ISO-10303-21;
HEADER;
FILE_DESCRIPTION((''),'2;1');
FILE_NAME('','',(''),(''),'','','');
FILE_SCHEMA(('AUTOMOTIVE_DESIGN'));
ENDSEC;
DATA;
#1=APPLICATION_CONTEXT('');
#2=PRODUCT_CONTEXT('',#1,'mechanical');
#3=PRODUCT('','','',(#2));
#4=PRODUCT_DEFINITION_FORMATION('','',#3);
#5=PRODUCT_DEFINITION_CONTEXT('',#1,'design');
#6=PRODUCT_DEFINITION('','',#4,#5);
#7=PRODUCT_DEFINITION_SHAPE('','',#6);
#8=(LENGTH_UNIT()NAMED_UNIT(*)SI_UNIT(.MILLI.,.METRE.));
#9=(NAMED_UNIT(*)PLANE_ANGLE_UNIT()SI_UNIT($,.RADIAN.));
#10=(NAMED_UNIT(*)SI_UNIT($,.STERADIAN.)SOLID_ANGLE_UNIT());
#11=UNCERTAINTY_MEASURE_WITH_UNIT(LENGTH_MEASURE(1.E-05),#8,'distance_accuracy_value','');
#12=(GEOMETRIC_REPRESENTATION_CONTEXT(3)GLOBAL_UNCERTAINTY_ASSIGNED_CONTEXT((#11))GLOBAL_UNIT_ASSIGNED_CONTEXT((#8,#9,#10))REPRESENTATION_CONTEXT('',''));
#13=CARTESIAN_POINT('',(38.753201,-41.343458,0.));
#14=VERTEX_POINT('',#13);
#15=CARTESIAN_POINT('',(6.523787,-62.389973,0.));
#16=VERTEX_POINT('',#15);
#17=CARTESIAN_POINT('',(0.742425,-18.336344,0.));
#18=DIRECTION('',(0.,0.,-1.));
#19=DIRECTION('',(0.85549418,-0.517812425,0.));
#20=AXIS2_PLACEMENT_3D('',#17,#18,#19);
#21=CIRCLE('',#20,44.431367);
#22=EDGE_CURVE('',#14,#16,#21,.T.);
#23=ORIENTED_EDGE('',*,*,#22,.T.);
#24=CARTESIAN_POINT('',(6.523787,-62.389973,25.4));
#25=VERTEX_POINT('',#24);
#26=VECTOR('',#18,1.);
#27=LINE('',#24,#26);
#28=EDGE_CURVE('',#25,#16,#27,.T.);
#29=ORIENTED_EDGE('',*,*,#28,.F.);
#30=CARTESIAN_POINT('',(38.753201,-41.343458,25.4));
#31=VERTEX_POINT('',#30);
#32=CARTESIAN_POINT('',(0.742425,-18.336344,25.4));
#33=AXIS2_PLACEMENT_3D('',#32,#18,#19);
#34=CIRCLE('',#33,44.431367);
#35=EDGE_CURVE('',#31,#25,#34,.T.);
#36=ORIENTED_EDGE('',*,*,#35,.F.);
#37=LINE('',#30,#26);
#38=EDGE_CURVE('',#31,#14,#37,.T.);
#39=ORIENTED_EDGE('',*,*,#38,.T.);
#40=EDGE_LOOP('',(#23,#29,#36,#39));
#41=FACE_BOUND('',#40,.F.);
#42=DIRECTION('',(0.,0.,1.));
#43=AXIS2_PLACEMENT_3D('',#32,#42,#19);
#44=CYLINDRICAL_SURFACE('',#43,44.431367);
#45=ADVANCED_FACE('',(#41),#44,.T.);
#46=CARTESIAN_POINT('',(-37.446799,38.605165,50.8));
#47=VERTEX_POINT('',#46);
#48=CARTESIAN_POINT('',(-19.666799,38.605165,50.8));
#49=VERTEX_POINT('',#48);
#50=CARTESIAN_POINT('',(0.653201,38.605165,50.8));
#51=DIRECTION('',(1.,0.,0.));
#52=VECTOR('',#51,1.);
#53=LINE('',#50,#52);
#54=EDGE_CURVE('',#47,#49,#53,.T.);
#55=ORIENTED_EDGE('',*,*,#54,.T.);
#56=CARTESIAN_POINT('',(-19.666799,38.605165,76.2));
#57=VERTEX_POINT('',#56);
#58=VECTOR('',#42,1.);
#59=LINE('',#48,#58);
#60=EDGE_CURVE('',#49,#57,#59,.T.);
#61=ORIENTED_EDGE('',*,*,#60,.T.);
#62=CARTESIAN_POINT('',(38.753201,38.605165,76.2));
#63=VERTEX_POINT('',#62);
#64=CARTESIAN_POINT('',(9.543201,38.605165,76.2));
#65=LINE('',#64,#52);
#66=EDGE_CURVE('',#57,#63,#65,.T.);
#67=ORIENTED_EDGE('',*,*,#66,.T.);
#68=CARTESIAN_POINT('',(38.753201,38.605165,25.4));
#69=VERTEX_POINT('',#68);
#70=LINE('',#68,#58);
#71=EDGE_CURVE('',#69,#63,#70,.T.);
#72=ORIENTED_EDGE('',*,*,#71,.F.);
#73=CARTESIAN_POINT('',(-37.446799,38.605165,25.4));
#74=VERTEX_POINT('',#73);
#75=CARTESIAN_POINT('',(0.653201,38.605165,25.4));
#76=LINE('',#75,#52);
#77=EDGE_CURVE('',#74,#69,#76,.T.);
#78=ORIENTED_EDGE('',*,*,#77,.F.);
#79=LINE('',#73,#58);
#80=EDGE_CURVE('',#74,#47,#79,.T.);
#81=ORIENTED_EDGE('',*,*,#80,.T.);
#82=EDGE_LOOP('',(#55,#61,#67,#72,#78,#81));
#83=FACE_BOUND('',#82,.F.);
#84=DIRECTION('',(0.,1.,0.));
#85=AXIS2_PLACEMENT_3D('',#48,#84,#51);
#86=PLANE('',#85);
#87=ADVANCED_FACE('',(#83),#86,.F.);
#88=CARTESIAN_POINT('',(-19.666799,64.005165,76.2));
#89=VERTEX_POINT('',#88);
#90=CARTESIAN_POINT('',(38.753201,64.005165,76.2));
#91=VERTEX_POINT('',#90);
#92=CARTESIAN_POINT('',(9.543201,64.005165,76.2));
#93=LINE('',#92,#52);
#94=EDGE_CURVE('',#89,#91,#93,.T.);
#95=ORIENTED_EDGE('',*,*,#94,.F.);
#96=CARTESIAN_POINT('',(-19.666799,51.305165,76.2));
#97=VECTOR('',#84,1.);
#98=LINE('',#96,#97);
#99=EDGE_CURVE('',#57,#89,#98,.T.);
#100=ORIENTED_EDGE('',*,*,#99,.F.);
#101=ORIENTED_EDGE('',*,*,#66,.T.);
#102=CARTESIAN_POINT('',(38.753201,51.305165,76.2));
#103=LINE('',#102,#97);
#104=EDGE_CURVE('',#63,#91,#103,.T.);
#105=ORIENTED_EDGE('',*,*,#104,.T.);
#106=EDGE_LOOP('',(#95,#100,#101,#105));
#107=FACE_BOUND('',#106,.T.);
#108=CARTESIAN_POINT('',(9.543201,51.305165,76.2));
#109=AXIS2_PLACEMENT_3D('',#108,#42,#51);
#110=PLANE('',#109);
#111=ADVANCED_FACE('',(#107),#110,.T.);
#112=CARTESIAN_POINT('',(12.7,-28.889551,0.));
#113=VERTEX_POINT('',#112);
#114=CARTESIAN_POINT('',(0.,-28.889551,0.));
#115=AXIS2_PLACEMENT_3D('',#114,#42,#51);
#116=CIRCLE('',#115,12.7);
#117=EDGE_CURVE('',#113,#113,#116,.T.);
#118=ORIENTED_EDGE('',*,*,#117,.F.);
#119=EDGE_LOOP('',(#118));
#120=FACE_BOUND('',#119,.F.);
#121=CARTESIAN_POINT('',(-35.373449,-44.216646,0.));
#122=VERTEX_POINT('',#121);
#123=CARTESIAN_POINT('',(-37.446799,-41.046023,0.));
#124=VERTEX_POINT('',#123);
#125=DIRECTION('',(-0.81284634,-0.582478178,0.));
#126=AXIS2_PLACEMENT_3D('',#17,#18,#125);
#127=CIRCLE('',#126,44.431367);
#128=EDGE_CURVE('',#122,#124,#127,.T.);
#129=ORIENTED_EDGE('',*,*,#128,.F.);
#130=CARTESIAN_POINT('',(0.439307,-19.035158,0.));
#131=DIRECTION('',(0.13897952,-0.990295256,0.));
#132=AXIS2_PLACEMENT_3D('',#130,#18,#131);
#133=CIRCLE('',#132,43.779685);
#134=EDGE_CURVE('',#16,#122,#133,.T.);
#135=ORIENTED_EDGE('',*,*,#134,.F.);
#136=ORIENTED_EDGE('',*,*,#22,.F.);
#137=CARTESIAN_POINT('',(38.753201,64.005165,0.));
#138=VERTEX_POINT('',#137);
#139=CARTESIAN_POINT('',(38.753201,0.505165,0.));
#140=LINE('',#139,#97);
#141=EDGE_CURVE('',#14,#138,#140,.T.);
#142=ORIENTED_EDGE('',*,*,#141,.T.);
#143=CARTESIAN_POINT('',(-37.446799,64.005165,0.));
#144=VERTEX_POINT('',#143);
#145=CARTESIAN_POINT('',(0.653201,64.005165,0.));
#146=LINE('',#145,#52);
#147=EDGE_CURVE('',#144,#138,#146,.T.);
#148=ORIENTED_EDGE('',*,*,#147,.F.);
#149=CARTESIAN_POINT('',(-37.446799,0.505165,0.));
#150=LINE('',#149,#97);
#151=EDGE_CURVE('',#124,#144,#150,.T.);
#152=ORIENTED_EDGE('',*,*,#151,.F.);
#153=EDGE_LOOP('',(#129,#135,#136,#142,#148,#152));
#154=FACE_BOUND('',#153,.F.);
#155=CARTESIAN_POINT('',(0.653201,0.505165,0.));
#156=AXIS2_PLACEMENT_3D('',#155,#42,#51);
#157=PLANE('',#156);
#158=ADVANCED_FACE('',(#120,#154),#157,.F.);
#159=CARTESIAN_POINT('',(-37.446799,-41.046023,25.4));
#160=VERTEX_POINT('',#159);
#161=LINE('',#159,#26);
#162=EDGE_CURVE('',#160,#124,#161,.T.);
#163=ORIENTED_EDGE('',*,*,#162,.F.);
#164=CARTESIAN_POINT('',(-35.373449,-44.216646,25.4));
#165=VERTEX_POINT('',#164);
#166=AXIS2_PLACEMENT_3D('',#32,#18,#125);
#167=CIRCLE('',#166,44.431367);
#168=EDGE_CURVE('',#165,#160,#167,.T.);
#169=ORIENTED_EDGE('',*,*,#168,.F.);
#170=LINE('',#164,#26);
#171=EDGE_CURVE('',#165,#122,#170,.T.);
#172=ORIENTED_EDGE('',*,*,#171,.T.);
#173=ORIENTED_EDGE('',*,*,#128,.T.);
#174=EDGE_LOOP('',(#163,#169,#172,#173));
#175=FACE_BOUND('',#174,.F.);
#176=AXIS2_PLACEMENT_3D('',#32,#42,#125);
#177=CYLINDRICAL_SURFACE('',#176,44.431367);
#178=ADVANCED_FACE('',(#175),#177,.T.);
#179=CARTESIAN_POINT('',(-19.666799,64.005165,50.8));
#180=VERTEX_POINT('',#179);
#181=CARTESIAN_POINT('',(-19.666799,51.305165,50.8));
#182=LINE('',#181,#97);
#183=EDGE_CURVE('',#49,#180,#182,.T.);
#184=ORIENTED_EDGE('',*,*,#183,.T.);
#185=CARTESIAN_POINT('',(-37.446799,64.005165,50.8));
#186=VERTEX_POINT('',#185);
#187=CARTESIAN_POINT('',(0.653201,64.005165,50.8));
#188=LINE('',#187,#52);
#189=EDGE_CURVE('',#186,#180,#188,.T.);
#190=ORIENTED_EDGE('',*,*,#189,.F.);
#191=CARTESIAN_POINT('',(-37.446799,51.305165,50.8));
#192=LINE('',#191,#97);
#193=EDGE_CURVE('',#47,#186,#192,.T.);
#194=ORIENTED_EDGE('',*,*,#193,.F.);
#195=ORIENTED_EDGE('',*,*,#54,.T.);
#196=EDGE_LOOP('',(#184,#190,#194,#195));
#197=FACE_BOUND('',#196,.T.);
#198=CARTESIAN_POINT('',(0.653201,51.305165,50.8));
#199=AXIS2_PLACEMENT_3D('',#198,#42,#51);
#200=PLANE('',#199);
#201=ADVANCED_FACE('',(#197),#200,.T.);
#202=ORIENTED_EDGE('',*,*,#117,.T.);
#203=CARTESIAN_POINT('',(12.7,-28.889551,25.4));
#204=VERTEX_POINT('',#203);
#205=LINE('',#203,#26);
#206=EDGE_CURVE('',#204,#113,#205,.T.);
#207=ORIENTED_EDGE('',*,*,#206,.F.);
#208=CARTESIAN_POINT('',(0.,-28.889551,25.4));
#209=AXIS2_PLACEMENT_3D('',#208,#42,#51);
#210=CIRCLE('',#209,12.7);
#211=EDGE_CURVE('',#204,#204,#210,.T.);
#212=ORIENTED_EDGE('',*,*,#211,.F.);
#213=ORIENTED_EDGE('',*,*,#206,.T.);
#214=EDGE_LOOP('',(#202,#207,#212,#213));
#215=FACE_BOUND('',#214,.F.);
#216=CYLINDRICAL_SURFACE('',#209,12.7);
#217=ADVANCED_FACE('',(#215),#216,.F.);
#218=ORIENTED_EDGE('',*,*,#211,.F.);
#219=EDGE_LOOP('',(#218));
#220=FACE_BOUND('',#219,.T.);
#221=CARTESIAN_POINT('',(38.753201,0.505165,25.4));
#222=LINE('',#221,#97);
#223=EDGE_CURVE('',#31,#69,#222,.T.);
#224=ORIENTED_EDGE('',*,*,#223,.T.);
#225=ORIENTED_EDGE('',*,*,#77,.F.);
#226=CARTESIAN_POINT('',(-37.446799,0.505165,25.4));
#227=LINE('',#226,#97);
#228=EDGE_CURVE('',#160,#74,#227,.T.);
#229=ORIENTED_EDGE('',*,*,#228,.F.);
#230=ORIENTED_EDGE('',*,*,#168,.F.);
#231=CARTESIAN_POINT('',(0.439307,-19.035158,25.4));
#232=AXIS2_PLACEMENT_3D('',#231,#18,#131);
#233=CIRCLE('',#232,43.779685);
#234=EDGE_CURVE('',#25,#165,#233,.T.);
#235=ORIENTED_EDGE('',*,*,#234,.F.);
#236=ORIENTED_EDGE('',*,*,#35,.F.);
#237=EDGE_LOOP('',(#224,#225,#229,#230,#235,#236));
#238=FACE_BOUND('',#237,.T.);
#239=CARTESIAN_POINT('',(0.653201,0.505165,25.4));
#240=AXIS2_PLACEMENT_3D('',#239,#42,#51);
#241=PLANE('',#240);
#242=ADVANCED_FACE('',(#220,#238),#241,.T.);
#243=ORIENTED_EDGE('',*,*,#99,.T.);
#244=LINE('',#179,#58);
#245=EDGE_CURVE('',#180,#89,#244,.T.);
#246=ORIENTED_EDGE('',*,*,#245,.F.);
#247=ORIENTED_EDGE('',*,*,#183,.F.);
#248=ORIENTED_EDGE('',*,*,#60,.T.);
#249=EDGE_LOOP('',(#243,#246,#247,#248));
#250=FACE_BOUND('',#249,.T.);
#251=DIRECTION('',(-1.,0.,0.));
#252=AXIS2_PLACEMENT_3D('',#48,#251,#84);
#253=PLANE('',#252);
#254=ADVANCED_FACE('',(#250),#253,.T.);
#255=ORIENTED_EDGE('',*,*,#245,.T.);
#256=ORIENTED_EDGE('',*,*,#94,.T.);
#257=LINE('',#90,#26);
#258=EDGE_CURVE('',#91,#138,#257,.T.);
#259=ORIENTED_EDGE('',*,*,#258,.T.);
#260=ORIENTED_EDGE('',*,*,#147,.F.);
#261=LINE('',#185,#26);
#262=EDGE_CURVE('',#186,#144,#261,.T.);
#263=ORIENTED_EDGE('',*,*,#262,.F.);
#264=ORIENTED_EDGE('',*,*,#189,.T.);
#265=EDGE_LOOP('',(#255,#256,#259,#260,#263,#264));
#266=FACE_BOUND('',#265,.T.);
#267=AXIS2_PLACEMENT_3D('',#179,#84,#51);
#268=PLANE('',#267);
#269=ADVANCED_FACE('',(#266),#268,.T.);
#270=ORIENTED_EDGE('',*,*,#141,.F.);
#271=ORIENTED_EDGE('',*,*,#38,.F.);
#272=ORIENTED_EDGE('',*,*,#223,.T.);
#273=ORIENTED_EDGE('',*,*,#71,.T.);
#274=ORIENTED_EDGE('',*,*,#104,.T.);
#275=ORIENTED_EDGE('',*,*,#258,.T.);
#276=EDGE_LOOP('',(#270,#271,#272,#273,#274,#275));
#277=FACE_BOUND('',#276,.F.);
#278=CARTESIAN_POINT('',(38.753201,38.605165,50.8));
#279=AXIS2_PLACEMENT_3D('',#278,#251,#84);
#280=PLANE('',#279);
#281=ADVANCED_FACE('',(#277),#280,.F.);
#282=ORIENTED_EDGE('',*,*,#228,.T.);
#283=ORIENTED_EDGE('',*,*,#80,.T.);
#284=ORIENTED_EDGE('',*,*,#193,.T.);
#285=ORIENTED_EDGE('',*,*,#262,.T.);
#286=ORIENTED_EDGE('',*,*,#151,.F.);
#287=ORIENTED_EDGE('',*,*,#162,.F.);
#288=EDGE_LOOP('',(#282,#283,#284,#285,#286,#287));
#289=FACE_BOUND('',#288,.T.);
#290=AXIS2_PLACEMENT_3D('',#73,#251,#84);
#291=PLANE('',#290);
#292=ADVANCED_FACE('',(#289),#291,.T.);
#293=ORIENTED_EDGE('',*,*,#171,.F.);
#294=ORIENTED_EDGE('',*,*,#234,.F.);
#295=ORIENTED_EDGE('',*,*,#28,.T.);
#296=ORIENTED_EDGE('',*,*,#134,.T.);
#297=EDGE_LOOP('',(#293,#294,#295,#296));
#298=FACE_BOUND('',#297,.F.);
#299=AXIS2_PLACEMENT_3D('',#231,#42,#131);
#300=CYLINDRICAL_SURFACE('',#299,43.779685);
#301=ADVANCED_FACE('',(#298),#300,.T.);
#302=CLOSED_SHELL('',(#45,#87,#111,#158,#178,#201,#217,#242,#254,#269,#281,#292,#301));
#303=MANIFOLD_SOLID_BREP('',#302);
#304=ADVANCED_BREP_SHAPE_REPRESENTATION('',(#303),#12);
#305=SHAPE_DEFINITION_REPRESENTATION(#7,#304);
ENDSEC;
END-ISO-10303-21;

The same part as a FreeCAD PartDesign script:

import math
import FreeCAD as App
import Part
import Sketcher

V = App.Vector
Q = App.Units.Quantity


def add_polygon(sketch, points):
    """Adds a closed chain of lines whose ends are joined by coincident constraints."""
    first, n = sketch.GeometryCount, len(points)
    for a, b in zip(points, points[1:] + points[:1]):
        sketch.addGeometry(Part.LineSegment(App.Vector(*a, 0), App.Vector(*b, 0)), False)
    for i in range(n):
        sketch.addConstraint(Sketcher.Constraint("Coincident", first + i, 2, first + (i + 1) % n, 1))

doc = App.newDocument("Part")
params = doc.addObject("Spreadsheet::Sheet", "Params")
for row, (alias, value) in enumerate([
    ("sketch1_width", "3 in"),
    ("sketch1_height", "5 in"),
    ("pad1_length", "1 in"),
    ("sketch2_width", "3 in"),
    ("sketch2_height", "1 in"),
    ("pad2_length", "1 in"),
    ("sketch3_height", "1 in"),
    ("sketch3_width", "2.3 in"),
    ("pad3_length", "1 in"),
    ("sketch4_diameter", "1 in"),
    ("pocket1_length", "1 in"),
    ("sketch5_width", "3 in"),
    ("pocket2_length", "1 in"),
    ("sketch6_width", "3 in"),
], start=1):
    params.set(f"A{row}", alias)
    params.set(f"B{row}", "=" + value)
    params.setAlias(f"B{row}", alias)

body = doc.addObject("PartDesign::Body", "Body")

sketch1 = body.newObject("Sketcher::SketchObject", "Sketch")
sketch1.AttachmentSupport = (doc.getObject("XY_Plane"), [""])
sketch1.MapMode = "FlatFace"
add_polygon(sketch1, [(-37.446799, 64.005165), (-37.446799, -62.994835), (38.753201, -62.994835), (38.753201, 64.005165)])
sketch1.addConstraint([
    Sketcher.Constraint("Vertical", 0),
    Sketcher.Constraint("Horizontal", 1),
    Sketcher.Constraint("Vertical", 2),
    Sketcher.Constraint("Horizontal", 3),
    Sketcher.Constraint("DistanceX", 1, 1, 1, 2, Q("3 in")),
    Sketcher.Constraint("DistanceY", 0, 2, 0, 1, Q("5 in")),
    Sketcher.Constraint("DistanceX", 0, 2, -1, 1, Q("37.446799 mm")),
    Sketcher.Constraint("DistanceY", 0, 2, -1, 1, Q("62.994835 mm")),
])
sketch1.setExpression("Constraints[8]", "Params.sketch1_width")
sketch1.setExpression("Constraints[9]", "Params.sketch1_height")
pad1 = body.newObject("PartDesign::Pad", "Pad")
pad1.Profile = sketch1
pad1.setExpression("Length", "Params.pad1_length")

sketch2 = body.newObject("Sketcher::SketchObject", "Sketch001")
sketch2.AttachmentSupport = (doc.getObject("XY_Plane"), [""])
sketch2.MapMode = "FlatFace"
sketch2.AttachmentOffset = App.Placement(V(0, 0, 1 * 25.4), App.Rotation())
add_polygon(sketch2, [(-37.446799, 64.005165), (-37.446799, 38.605165), (38.753201, 38.605165), (38.753201, 64.005165)])
sketch2.addConstraint([
    Sketcher.Constraint("Vertical", 0),
    Sketcher.Constraint("Horizontal", 1),
    Sketcher.Constraint("Vertical", 2),
    Sketcher.Constraint("Horizontal", 3),
    Sketcher.Constraint("DistanceX", 1, 1, 1, 2, Q("3 in")),
    Sketcher.Constraint("DistanceY", 0, 2, 0, 1, Q("1 in")),
    Sketcher.Constraint("DistanceX", 0, 2, -1, 1, Q("37.446799 mm")),
    Sketcher.Constraint("DistanceY", -1, 1, 0, 2, Q("38.605165 mm")),
])
sketch2.setExpression("Constraints[8]", "Params.sketch2_width")
sketch2.setExpression("Constraints[9]", "Params.sketch2_height")
pad2 = body.newObject("PartDesign::Pad", "Pad001")
pad2.Profile = sketch2
pad2.setExpression("Length", "Params.pad2_length")

sketch3 = body.newObject("Sketcher::SketchObject", "Sketch002")
sketch3.AttachmentSupport = (doc.getObject("XY_Plane"), [""])
sketch3.MapMode = "FlatFace"
sketch3.AttachmentOffset = App.Placement(V(0, 0, 2 * 25.4), App.Rotation())
add_polygon(sketch3, [(-19.666799, 64.005165), (-19.666799, 38.605165), (38.753201, 38.605165), (38.753201, 64.005165)])
sketch3.addConstraint([
    Sketcher.Constraint("Vertical", 0),
    Sketcher.Constraint("Horizontal", 1),
    Sketcher.Constraint("Vertical", 2),
    Sketcher.Constraint("Horizontal", 3),
    Sketcher.Constraint("DistanceY", 0, 2, 0, 1, Q("1 in")),
    Sketcher.Constraint("DistanceX", 1, 1, 1, 2, Q("2.3 in")),
    Sketcher.Constraint("DistanceX", 0, 2, -1, 1, Q("19.666799 mm")),
    Sketcher.Constraint("DistanceY", -1, 1, 0, 2, Q("38.605165 mm")),
])
sketch3.setExpression("Constraints[8]", "Params.sketch3_height")
sketch3.setExpression("Constraints[9]", "Params.sketch3_width")
pad3 = body.newObject("PartDesign::Pad", "Pad002")
pad3.Profile = sketch3
pad3.setExpression("Length", "Params.pad3_length")

sketch4 = body.newObject("Sketcher::SketchObject", "Sketch003")
sketch4.AttachmentSupport = (doc.getObject("XY_Plane"), [""])
sketch4.MapMode = "FlatFace"
sketch4.AttachmentOffset = App.Placement(V(0, 0, 1 * 25.4), App.Rotation())
sketch4.addGeometry(Part.Circle(V(0, -28.889551, 0), V(0, 0, 1), 12.7), False)
sketch4.addConstraint([
    Sketcher.Constraint("PointOnObject", 0, 3, -2),
    Sketcher.Constraint("Diameter", 0, Q("1 in")),
    Sketcher.Constraint("DistanceY", 0, 3, -1, 1, Q("28.889551 mm")),
])
sketch4.setExpression("Constraints[1]", "Params.sketch4_diameter")
pocket1 = body.newObject("PartDesign::Pocket", "Pocket")
pocket1.Profile = sketch4
pocket1.setExpression("Length", "Params.pocket1_length")

sketch5 = body.newObject("Sketcher::SketchObject", "Sketch004")
sketch5.AttachmentSupport = (doc.getObject("XY_Plane"), [""])
sketch5.MapMode = "FlatFace"
sketch5.AttachmentOffset = App.Placement(V(0, 0, 1 * 25.4), App.Rotation())
sketch5.addGeometry([
    Part.ArcOfCircle(Part.Circle(V(0.439307, -19.035158, 0), V(0, 0, 1), 43.779685), math.radians(-144.8873), math.radians(-82.0112)),
    Part.ArcOfCircle(Part.Circle(V(0.742425, -18.336344, 0), V(0, 0, 1), 44.431367), math.radians(-149.26166), math.radians(-144.374966)),
    Part.LineSegment(V(-37.446799, -41.046023, 0), V(-37.446799, -62.994835, 0)),
    Part.LineSegment(V(-37.446799, -62.994835, 0), V(38.753201, -62.994835, 0)),
    Part.LineSegment(V(38.753201, -62.994835, 0), V(38.753201, -41.343458, 0)),
    Part.ArcOfCircle(Part.Circle(V(0.742425, -18.336344, 0), V(0, 0, 1), 44.431367), math.radians(-82.523535), math.radians(-31.185627)),
], False)
sketch5.addConstraint([
    Sketcher.Constraint("Coincident", 0, 1, 1, 2),
    Sketcher.Constraint("Coincident", 1, 1, 2, 1),
    Sketcher.Constraint("Coincident", 2, 2, 3, 1),
    Sketcher.Constraint("Coincident", 3, 2, 4, 1),
    Sketcher.Constraint("Coincident", 4, 2, 5, 2),
    Sketcher.Constraint("Coincident", 5, 1, 0, 2),
    Sketcher.Constraint("Vertical", 2),
    Sketcher.Constraint("Horizontal", 3),
    Sketcher.Constraint("Vertical", 4),
    Sketcher.Constraint("Coincident", 5, 3, 1, 3),
    Sketcher.Constraint("Equal", 1, 5),
    Sketcher.Constraint("DistanceX", 3, 1, 3, 2, Q("3 in")),
    Sketcher.Constraint("Radius", 0, Q("43.779685 mm")),
    Sketcher.Constraint("Radius", 1, Q("44.431367 mm")),
    Sketcher.Constraint("DistanceY", 2, 2, 2, 1, Q("21.948811 mm")),
    Sketcher.Constraint("DistanceX", 1, 1, -1, 1, Q("37.446799 mm")),
    Sketcher.Constraint("DistanceY", 0, 1, 5, 3, Q("25.880302 mm")),
    Sketcher.Constraint("DistanceY", 4, 2, 0, 3, Q("22.3083 mm")),
    Sketcher.Constraint("DistanceY", 4, 1, 4, 2, Q("21.651377 mm")),
    Sketcher.Constraint("DistanceY", 0, 3, -1, 1, Q("19.035158 mm")),
])
sketch5.setExpression("Constraints[11]", "Params.sketch5_width")
pocket2 = body.newObject("PartDesign::Pocket", "Pocket001")
pocket2.Profile = sketch5
pocket2.setExpression("Length", "Params.pocket2_length")

sketch6 = body.newObject("Sketcher::SketchObject", "Sketch005")
sketch6.AttachmentSupport = (doc.getObject("XY_Plane"), [""])
sketch6.MapMode = "FlatFace"
sketch6.AttachmentOffset = App.Placement(V(0, 0, 1 * 25.4), App.Rotation())
sketch6.addGeometry([
    Part.ArcOfCircle(Part.Circle(V(0.439307, -19.035158, 0), V(0, 0, 1), 43.779685), math.radians(-144.8873), math.radians(-82.0112)),
    Part.ArcOfCircle(Part.Circle(V(0.742425, -18.336344, 0), V(0, 0, 1), 44.431367), math.radians(-149.26166), math.radians(-144.374966)),
    Part.LineSegment(V(-37.446799, -41.046023, 0), V(-37.446799, -62.994835, 0)),
    Part.LineSegment(V(-37.446799, -62.994835, 0), V(38.753201, -62.994835, 0)),
    Part.LineSegment(V(38.753201, -62.994835, 0), V(38.753201, -41.343458, 0)),
    Part.ArcOfCircle(Part.Circle(V(0.742425, -18.336344, 0), V(0, 0, 1), 44.431367), math.radians(-82.523535), math.radians(-31.185627)),
], False)
sketch6.addConstraint([
    Sketcher.Constraint("Coincident", 0, 1, 1, 2),
    Sketcher.Constraint("Coincident", 1, 1, 2, 1),
    Sketcher.Constraint("Coincident", 2, 2, 3, 1),
    Sketcher.Constraint("Coincident", 3, 2, 4, 1),
    Sketcher.Constraint("Coincident", 4, 2, 5, 2),
    Sketcher.Constraint("Coincident", 5, 1, 0, 2),
    Sketcher.Constraint("Vertical", 2),
    Sketcher.Constraint("Horizontal", 3),
    Sketcher.Constraint("Vertical", 4),
    Sketcher.Constraint("Coincident", 5, 3, 1, 3),
    Sketcher.Constraint("Equal", 1, 5),
    Sketcher.Constraint("DistanceX", 3, 1, 3, 2, Q("3 in")),
    Sketcher.Constraint("Radius", 0, Q("43.779685 mm")),
    Sketcher.Constraint("Radius", 1, Q("44.431367 mm")),
    Sketcher.Constraint("DistanceY", 2, 2, 2, 1, Q("21.948811 mm")),
    Sketcher.Constraint("DistanceX", 1, 1, -1, 1, Q("37.446799 mm")),
    Sketcher.Constraint("DistanceY", 0, 1, 5, 3, Q("25.880302 mm")),
    Sketcher.Constraint("DistanceY", 4, 2, 0, 3, Q("22.3083 mm")),
    Sketcher.Constraint("DistanceY", 4, 1, 4, 2, Q("21.651377 mm")),
    Sketcher.Constraint("DistanceY", 0, 3, -1, 1, Q("19.035158 mm")),
])
sketch6.setExpression("Constraints[11]", "Params.sketch6_width")
pocket3 = body.newObject("PartDesign::Pocket", "Pocket002")
pocket3.Profile = sketch6
pocket3.Type = "ThroughAll"

doc.recompute()
